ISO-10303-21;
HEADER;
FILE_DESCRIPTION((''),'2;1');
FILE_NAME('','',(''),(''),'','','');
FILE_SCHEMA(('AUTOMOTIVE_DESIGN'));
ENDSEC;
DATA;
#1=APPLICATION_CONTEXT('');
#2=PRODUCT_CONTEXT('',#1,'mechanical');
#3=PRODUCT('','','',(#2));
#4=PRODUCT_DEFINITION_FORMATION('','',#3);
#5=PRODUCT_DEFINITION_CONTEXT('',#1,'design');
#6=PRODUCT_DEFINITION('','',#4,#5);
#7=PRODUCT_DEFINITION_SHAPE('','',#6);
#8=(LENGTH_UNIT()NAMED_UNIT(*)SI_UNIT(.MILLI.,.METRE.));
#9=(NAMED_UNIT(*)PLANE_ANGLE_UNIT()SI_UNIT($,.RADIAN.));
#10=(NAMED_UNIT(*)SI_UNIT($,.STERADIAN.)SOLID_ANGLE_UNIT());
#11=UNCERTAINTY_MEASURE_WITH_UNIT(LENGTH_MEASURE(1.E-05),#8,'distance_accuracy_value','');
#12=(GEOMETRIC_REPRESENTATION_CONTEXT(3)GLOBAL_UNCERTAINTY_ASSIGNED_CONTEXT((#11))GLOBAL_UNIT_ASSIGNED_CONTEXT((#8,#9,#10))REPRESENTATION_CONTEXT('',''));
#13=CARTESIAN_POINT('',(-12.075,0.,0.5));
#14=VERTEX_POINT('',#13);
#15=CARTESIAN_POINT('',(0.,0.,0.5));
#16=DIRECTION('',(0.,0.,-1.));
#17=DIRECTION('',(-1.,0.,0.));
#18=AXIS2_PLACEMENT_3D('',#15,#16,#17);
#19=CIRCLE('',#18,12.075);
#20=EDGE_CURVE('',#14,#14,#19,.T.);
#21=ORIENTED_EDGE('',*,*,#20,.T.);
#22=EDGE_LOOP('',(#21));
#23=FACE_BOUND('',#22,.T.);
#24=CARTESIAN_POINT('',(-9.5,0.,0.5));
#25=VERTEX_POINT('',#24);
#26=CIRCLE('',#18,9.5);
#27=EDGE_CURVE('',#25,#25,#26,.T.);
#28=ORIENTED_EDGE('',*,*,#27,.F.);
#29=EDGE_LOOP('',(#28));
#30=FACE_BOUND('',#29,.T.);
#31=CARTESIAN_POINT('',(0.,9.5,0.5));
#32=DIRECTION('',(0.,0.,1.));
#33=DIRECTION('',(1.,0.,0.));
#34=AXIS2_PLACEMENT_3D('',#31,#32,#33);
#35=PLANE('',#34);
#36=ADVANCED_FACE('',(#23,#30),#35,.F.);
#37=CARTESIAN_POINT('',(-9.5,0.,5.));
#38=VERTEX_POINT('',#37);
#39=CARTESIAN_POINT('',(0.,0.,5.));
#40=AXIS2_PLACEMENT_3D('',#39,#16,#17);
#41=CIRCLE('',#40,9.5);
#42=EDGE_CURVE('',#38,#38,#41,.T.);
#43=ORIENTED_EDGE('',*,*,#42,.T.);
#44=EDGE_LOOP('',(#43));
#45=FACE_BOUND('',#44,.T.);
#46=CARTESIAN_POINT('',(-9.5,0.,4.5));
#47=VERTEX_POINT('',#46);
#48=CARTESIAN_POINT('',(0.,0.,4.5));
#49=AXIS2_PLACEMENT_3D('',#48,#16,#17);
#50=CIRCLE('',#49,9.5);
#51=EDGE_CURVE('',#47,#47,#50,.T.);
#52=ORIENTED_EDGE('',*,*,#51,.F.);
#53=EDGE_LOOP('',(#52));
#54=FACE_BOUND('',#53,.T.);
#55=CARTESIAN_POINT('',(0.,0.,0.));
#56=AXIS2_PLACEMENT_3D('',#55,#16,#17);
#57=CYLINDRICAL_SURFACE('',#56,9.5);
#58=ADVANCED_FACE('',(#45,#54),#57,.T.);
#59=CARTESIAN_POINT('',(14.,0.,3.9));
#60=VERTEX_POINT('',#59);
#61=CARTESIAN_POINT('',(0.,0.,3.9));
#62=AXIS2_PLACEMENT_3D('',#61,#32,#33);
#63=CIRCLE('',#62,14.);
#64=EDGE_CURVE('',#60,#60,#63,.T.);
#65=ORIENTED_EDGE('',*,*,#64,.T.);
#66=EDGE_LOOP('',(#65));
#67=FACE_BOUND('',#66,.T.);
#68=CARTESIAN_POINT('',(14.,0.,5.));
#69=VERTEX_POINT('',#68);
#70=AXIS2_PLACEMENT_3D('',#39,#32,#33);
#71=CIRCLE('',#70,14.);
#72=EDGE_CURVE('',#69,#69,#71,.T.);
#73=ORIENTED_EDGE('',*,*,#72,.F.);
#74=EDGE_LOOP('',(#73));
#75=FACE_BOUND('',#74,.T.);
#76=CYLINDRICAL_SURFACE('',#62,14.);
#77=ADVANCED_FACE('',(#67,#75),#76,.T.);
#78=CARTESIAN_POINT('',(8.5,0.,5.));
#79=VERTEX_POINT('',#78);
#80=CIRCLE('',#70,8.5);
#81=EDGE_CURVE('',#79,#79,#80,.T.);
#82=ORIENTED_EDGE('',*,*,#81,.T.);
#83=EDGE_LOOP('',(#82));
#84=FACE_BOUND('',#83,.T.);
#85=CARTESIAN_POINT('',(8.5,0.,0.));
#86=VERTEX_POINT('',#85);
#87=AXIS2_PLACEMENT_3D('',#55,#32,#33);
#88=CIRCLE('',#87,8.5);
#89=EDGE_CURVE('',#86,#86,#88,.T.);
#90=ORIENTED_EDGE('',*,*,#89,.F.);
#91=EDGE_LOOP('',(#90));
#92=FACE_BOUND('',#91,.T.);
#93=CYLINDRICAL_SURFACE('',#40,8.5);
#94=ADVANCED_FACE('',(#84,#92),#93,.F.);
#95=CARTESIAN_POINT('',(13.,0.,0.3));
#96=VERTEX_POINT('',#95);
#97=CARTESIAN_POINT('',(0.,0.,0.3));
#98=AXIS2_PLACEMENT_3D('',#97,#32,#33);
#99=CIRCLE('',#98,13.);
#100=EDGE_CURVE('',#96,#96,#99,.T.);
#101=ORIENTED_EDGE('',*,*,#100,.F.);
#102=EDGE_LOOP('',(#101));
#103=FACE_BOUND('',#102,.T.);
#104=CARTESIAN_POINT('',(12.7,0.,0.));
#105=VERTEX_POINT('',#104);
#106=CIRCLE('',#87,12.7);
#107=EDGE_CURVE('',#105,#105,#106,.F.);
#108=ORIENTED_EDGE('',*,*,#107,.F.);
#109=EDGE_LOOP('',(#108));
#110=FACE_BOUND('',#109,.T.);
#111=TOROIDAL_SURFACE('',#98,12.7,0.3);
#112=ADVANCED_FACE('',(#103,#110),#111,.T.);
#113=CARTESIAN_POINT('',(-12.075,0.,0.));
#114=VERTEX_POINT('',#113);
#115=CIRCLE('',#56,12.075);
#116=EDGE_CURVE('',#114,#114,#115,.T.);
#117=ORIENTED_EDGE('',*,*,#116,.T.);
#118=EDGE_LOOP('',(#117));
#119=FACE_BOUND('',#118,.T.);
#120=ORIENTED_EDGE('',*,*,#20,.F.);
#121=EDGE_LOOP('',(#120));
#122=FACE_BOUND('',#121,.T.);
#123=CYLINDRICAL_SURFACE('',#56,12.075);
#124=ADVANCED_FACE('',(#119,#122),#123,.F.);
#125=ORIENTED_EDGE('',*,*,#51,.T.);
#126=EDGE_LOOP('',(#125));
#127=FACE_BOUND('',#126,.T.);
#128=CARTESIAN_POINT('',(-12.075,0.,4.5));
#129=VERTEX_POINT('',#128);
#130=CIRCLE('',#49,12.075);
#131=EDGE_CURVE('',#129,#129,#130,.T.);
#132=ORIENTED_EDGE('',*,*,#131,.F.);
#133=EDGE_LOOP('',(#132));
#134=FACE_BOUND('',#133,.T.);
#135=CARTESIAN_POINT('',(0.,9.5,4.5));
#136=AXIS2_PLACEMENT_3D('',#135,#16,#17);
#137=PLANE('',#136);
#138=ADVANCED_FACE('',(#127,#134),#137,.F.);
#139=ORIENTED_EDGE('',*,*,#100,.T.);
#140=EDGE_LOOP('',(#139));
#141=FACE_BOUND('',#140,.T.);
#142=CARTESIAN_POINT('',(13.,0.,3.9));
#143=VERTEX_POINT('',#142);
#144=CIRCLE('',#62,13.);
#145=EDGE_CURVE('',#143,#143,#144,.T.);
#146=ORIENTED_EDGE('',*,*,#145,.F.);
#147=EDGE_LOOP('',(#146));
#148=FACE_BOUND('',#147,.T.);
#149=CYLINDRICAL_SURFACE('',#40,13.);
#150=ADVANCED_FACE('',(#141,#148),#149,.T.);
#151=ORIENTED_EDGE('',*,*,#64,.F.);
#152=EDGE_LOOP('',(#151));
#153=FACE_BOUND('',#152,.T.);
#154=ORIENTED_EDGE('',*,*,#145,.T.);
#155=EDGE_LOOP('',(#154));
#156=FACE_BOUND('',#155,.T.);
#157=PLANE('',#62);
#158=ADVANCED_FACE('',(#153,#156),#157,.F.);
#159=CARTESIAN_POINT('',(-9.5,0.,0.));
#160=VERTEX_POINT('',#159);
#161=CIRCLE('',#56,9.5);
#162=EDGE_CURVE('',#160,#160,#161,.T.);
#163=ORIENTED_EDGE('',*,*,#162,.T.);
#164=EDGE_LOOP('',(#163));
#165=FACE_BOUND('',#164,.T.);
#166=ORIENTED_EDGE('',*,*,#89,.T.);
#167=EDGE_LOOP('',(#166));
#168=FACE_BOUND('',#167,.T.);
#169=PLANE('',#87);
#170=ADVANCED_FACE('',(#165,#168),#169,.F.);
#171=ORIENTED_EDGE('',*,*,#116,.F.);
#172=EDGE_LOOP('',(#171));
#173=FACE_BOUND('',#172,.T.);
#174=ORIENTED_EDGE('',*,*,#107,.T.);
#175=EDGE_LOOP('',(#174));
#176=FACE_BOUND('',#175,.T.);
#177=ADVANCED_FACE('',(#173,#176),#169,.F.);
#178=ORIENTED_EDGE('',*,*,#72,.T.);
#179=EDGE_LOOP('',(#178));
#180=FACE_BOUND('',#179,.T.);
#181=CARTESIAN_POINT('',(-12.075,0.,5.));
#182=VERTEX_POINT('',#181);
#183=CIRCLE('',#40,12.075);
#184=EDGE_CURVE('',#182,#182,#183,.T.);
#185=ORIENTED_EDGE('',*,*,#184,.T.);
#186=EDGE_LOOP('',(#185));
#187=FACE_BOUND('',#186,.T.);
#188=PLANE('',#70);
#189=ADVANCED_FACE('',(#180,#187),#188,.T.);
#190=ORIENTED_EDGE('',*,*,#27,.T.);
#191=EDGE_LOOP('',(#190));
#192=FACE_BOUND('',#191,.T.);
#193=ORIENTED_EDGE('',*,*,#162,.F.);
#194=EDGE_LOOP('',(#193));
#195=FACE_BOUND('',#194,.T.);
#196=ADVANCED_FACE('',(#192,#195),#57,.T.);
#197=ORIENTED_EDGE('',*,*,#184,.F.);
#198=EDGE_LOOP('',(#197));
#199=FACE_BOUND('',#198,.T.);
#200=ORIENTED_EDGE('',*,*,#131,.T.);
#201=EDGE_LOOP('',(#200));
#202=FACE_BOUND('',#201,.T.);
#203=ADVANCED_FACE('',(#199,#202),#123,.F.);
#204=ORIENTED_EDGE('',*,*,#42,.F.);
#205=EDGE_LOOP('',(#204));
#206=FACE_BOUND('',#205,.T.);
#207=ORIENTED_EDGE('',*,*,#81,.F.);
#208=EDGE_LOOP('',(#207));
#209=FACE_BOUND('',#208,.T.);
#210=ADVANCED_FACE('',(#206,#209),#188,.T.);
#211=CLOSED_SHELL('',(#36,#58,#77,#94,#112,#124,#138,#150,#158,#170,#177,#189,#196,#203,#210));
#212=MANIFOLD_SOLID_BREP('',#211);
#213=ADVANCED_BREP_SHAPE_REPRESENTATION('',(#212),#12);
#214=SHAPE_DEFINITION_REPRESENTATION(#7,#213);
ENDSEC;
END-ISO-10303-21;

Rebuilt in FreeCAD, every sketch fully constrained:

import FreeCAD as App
import Part
import Sketcher


def edges_at(feature, points):
    """Names of the edges that pass closest to the given points."""
    edges = feature.Shape.Edges
    near = lambda p: min(range(len(edges)), key=lambda i: edges[i].distToShape(Part.Vertex(*p))[0])
    return sorted({f"Edge{near(p) + 1}" for p in points})


def add_polygon(sketch, points):
    """Adds a closed chain of lines whose ends are joined by coincident constraints."""
    first, n = sketch.GeometryCount, len(points)
    for a, b in zip(points, points[1:] + points[:1]):
        sketch.addGeometry(Part.LineSegment(App.Vector(*a, 0), App.Vector(*b, 0)), False)
    for i in range(n):
        sketch.addConstraint(Sketcher.Constraint("Coincident", first + i, 2, first + (i + 1) % n, 1))

doc = App.newDocument("Part")
body = doc.addObject("PartDesign::Body", "Body")

# Sketch on XY plane
sketch1 = body.newObject("Sketcher::SketchObject", "Sketch")
sketch1.AttachmentSupport = (doc.getObject("XY_Plane"), [""])
sketch1.MapMode = "FlatFace"
sketch1.addGeometry([
    Part.Circle(App.Vector(0, 0, 0), App.Vector(0, 0, 1), 13),
    Part.Circle(App.Vector(0, 0, 0), App.Vector(0, 0, 1), 8),
], False)
sketch1.addConstraint([
    Sketcher.Constraint("Coincident", 0, 3, -1, 1),
    Sketcher.Constraint("Coincident", 1, 3, -1, 1),
    Sketcher.Constraint("Diameter", 0, 26.0),
    Sketcher.Constraint("Diameter", 1, 17.0),
])
pad1 = body.newObject("PartDesign::Pad", "Pad")
pad1.Profile = sketch1
pad1.Length = 5

# Sketch on XY plane
sketch2 = body.newObject("Sketcher::SketchObject", "Sketch001")
sketch2.AttachmentSupport = (doc.getObject("XY_Plane"), [""])
sketch2.MapMode = "FlatFace"
sketch2.AttachmentOffset = App.Placement(App.Vector(0, 0, 3.9), App.Rotation())
sketch2.addGeometry([
    Part.Circle(App.Vector(0, 0, 0), App.Vector(0, 0, 1), 14),
    Part.Circle(App.Vector(0, 0, 0), App.Vector(0, 0, 1), 13),
], False)
sketch2.addConstraint([
    Sketcher.Constraint("Coincident", 0, 3, -1, 1),
    Sketcher.Constraint("Coincident", 1, 3, -1, 1),
    Sketcher.Constraint("Diameter", 0, 28.0),
    Sketcher.Constraint("Diameter", 1, 26.0),
])
pad2 = body.newObject("PartDesign::Pad", "Pad001")
pad2.Profile = sketch2
pad2.Length = 1.1
doc.recompute()

fillet = body.newObject("PartDesign::Fillet", "Fillet")
fillet.Base = (pad2, edges_at(pad2, [(-13, 0, 0)]))
fillet.Radius = 0.3

# Sketch on YZ plane
sketch3 = body.newObject("Sketcher::SketchObject", "Sketch002")
sketch3.AttachmentSupport = (doc.getObject("YZ_Plane"), [""])
sketch3.MapMode = "FlatFace"
add_polygon(sketch3, [(12.1, 0.5), (9.5, 0.5), (9.5, 0), (12.1, 0)])  # lines 0-3
add_polygon(sketch3, [(12.1, 5), (9.5, 5), (9.5, 4.5), (12.1, 4.5)])  # lines 4-7
sketch3.addConstraint([
    Sketcher.Constraint("Horizontal", 0),
    Sketcher.Constraint("Vertical", 1),
    Sketcher.Constraint("Horizontal", 2),
    Sketcher.Constraint("Vertical", 3),
    Sketcher.Constraint("Horizontal", 4),
    Sketcher.Constraint("Vertical", 5),
    Sketcher.Constraint("Horizontal", 6),
    Sketcher.Constraint("Vertical", 7),
    Sketcher.Constraint("PointOnObject", 1, 2, -1),
    Sketcher.Constraint("Vertical", 1, 2, 4, 2),
    Sketcher.Constraint("Vertical", 3, 2, 6, 2),
    Sketcher.Constraint("Equal", 3, 5),
    Sketcher.Constraint("DistanceY", 1, 2, 1, 1, 0.5),
    Sketcher.Constraint("DistanceY", -1, 1, 4, 2, 5.0),
    Sketcher.Constraint("DistanceX", -1, 1, 0, 2, 9.5),
    Sketcher.Constraint("DistanceX", 0, 2, 0, 1, 2.575),
])
groove = body.newObject("PartDesign::Groove", "Groove")
groove.Profile = sketch3
groove.ReferenceAxis = (sketch3, ["V_Axis"])
groove.Angle = 360

doc.recompute()
